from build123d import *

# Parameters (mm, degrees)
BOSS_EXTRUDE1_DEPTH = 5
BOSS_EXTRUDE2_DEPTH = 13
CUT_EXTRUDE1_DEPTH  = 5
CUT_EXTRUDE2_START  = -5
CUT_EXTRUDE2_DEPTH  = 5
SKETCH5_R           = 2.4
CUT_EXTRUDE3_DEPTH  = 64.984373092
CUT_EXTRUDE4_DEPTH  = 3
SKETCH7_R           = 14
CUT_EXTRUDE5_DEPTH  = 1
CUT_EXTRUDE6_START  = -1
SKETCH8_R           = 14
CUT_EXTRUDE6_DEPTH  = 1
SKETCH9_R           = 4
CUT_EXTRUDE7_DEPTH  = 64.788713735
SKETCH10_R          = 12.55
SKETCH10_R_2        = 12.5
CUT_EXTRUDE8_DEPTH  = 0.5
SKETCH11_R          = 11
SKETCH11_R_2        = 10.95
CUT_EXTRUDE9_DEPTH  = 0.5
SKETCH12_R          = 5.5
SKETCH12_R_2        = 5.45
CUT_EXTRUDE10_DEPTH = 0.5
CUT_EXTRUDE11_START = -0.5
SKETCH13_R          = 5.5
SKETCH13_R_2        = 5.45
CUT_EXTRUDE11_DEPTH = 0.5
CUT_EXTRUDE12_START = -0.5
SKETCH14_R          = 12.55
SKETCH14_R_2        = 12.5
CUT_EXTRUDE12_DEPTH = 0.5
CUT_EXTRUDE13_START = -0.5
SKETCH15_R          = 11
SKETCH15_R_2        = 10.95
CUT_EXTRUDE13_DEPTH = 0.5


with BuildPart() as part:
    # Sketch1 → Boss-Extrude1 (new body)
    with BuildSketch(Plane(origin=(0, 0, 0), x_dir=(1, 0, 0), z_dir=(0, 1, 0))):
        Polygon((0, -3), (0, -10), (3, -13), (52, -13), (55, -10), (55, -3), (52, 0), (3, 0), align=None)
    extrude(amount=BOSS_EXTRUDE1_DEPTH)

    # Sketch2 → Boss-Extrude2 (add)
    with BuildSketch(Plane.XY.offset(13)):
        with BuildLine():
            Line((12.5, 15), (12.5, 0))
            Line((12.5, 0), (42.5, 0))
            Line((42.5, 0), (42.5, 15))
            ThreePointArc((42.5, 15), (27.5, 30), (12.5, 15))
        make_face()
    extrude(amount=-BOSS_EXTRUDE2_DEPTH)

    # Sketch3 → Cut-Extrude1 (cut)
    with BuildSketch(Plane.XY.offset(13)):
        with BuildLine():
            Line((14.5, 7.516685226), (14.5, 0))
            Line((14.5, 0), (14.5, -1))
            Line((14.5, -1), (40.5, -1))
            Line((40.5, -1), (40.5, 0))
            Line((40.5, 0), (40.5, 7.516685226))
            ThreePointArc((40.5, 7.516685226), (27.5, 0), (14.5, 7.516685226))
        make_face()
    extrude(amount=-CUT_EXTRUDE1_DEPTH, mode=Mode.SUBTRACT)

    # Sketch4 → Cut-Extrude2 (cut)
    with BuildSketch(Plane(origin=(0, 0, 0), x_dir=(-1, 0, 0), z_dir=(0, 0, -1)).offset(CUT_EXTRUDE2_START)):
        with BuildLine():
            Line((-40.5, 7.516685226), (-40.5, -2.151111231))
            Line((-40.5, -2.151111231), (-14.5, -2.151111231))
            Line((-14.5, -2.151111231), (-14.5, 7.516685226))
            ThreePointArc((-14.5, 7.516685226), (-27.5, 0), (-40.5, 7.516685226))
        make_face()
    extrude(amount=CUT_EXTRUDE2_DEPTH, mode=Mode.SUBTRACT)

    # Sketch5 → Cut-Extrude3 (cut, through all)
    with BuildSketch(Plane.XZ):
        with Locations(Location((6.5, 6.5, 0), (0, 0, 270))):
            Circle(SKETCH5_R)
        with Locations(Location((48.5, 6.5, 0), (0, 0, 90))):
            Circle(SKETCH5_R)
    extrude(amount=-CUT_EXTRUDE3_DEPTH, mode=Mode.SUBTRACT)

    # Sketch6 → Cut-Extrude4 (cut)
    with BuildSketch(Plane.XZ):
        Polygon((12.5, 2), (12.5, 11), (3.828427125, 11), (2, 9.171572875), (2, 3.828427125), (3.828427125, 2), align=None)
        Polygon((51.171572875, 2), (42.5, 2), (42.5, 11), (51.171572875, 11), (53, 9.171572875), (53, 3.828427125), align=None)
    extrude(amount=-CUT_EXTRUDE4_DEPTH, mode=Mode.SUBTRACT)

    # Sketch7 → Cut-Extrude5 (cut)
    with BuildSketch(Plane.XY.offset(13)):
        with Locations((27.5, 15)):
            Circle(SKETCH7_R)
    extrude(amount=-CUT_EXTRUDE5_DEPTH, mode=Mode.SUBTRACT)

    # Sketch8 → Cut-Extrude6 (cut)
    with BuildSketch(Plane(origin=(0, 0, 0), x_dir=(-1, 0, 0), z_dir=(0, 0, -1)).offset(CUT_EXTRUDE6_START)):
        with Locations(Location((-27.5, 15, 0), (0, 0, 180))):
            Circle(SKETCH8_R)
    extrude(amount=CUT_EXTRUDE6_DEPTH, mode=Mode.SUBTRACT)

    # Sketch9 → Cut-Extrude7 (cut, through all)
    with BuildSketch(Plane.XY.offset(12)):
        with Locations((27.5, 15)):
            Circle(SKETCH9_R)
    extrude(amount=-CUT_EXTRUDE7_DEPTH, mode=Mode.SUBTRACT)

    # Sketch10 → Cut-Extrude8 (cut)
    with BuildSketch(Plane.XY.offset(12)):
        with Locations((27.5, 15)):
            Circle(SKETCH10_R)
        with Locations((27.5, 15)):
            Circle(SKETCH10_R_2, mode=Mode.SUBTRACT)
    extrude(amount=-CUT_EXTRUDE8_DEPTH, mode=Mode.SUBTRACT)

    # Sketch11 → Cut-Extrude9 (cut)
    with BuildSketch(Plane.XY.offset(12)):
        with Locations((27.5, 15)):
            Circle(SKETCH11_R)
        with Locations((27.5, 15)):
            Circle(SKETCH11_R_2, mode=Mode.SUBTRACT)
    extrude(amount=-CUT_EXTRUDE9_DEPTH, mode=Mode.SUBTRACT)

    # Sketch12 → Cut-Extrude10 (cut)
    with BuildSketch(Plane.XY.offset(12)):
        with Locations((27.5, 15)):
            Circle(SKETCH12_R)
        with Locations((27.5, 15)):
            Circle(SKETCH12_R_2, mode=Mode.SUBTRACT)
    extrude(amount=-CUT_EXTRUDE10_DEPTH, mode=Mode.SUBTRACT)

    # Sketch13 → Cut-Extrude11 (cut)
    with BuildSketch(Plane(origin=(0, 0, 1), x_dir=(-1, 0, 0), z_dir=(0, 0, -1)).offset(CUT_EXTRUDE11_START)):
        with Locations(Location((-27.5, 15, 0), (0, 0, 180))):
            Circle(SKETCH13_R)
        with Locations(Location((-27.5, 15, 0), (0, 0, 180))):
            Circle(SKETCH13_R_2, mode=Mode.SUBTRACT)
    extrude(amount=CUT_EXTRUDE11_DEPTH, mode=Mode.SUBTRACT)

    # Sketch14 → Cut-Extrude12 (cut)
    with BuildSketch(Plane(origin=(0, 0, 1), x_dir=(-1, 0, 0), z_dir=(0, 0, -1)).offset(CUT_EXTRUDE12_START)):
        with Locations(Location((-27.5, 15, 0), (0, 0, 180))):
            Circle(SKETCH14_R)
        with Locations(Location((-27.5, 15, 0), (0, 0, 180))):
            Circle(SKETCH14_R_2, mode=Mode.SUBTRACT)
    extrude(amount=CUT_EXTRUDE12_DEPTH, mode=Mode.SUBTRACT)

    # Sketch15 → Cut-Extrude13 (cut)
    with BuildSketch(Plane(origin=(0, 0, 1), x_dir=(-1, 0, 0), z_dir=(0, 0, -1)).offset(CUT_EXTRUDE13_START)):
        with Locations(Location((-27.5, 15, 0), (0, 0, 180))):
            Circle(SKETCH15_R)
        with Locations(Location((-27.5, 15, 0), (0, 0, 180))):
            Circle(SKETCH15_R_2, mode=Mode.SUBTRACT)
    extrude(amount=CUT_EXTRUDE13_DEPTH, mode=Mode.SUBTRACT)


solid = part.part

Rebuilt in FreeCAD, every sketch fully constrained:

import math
import FreeCAD as App
import Part
import Sketcher

V = App.Vector

doc = App.newDocument("Part")
params = doc.addObject("Spreadsheet::Sheet", "Params")
for row, (alias, value) in enumerate([
    ("sketch1_width", "49 mm"),
    ("sketch1_height", "7 mm"),
    ("pad1_length", "5 mm"),
    ("sketch2_radius", "15 mm"),
    ("sketch2_height", "15 mm"),
    ("pad2_length", "13 mm"),
    ("sketch3_radius", "15 mm"),
    ("sketch3_width", "26 mm"),
    ("pocket1_length", "5 mm"),
    ("sketch4_radius", "15 mm"),
    ("sketch4_width", "26 mm"),
    ("pocket2_length", "5 mm"),
    ("sketch5_diameter", "4.8 mm"),
    ("sketch6_height", "9 mm"),
    ("pocket4_length", "3 mm"),
    ("sketch7_diameter", "28 mm"),
    ("pocket5_length", "1 mm"),
    ("sketch8_diameter", "28 mm"),
    ("pocket6_length", "1 mm"),
    ("sketch9_diameter", "8 mm"),
    ("sketch10_diameter", "25 mm"),
    ("sketch10_diameter2", "25.1 mm"),
    ("pocket8_length", "0.5 mm"),
    ("sketch11_diameter", "22 mm"),
    ("sketch11_diameter2", "21.9 mm"),
    ("pocket9_length", "0.5 mm"),
    ("sketch12_diameter", "11 mm"),
    ("sketch12_diameter2", "10.9 mm"),
    ("pocket10_length", "0.5 mm"),
    ("sketch13_diameter", "11 mm"),
    ("sketch13_diameter2", "10.9 mm"),
    ("pocket11_length", "0.5 mm"),
    ("sketch14_diameter", "25 mm"),
    ("sketch14_diameter2", "25.1 mm"),
    ("pocket12_length", "0.5 mm"),
    ("sketch15_diameter", "22 mm"),
    ("sketch15_diameter2", "21.9 mm"),
    ("pocket13_length", "0.5 mm"),
], start=1):
    params.set(f"A{row}", alias)
    params.set(f"B{row}", "=" + value)
    params.setAlias(f"B{row}", alias)

body = doc.addObject("PartDesign::Body", "Body")

# Sketch on XZ plane
sketch1 = body.newObject("Sketcher::SketchObject", "Sketch")
sketch1.AttachmentSupport = (doc.getObject("XZ_Plane"), [""])
sketch1.MapMode = "FlatFace"
sketch1.addGeometry([
    Part.LineSegment(V(0, 3, 0), V(0, 10, 0)),  # 0
    Part.LineSegment(V(0, 10, 0), V(3, 13, 0)),  # 1
    Part.LineSegment(V(3, 13, 0), V(52, 13, 0)),  # 2
    Part.LineSegment(V(52, 13, 0), V(55, 10, 0)),  # 3
    Part.LineSegment(V(55, 10, 0), V(55, 3, 0)),  # 4
    Part.LineSegment(V(55, 3, 0), V(52, 0, 0)),  # 5
    Part.LineSegment(V(52, 0, 0), V(3, 0, 0)),  # 6
    Part.LineSegment(V(3, 0, 0), V(0, 3, 0)),  # 7
], False)
sketch1.addConstraint([
    Sketcher.Constraint("Coincident", 0, 2, 1, 1),
    Sketcher.Constraint("Coincident", 1, 2, 2, 1),
    Sketcher.Constraint("Coincident", 2, 2, 3, 1),
    Sketcher.Constraint("Coincident", 3, 2, 4, 1),
    Sketcher.Constraint("Coincident", 4, 2, 5, 1),
    Sketcher.Constraint("Coincident", 5, 2, 6, 1),
    Sketcher.Constraint("Coincident", 6, 2, 7, 1),
    Sketcher.Constraint("Coincident", 7, 2, 0, 1),
    Sketcher.Constraint("Vertical", 0),
    Sketcher.Constraint("Horizontal", 2),
    Sketcher.Constraint("Vertical", 4),
    Sketcher.Constraint("Horizontal", 6),
    Sketcher.Constraint("PointOnObject", 0, 2, -2),
    Sketcher.Constraint("PointOnObject", 5, 2, -1),
    Sketcher.Constraint("Perpendicular", 1, 3),
    Sketcher.Constraint("Perpendicular", 3, 5),
    Sketcher.Constraint("Perpendicular", 5, 7),
    Sketcher.Constraint("Horizontal", 0, 2, 3, 2),
    Sketcher.Constraint("Horizontal", 4, 2, 7, 2),
    Sketcher.Constraint("Vertical", 2, 2, 5, 2),
    Sketcher.Constraint("Vertical", 1, 2, 6, 2),
    Sketcher.Constraint("DistanceX", 2, 1, 2, 2, 49.0),
    Sketcher.Constraint("DistanceY", 0, 1, 0, 2, 7.0),
    Sketcher.Constraint("DistanceY", -1, 1, 0, 2, 10.0),
])
sketch1.setExpression("Constraints[21]", "Params.sketch1_width")
sketch1.setExpression("Constraints[22]", "Params.sketch1_height")
pad1 = body.newObject("PartDesign::Pad", "Pad")
pad1.Profile = sketch1
pad1.setExpression("Length", "Params.pad1_length")
pad1.Reversed = True

# Sketch on XY plane
sketch2 = body.newObject("Sketcher::SketchObject", "Sketch001")
sketch2.AttachmentSupport = (doc.getObject("XY_Plane"), [""])
sketch2.MapMode = "FlatFace"
sketch2.AttachmentOffset = App.Placement(V(0, 0, 13), App.Rotation())
sketch2.addGeometry([
    Part.LineSegment(V(12.5, 15, 0), V(12.5, 0, 0)),
    Part.LineSegment(V(12.5, 0, 0), V(42.5, 0, 0)),
    Part.LineSegment(V(42.5, 0, 0), V(42.5, 15, 0)),
    Part.ArcOfCircle(Part.Circle(V(27.5, 15, 0), V(0, 0, 1), 15), math.radians(0), math.radians(180)),
], False)
sketch2.addConstraint([
    Sketcher.Constraint("Coincident", 0, 2, 1, 1),
    Sketcher.Constraint("Coincident", 1, 2, 2, 1),
    Sketcher.Constraint("Tangent", 2, 2, 3, 1),
    Sketcher.Constraint("Tangent", 3, 2, 0, 1),
    Sketcher.Constraint("Vertical", 0),
    Sketcher.Constraint("Horizontal", 1),
    Sketcher.Constraint("Vertical", 2),
    Sketcher.Constraint("PointOnObject", 0, 2, -1),
    Sketcher.Constraint("Radius", 3, 15.0),
    Sketcher.Constraint("DistanceY", 0, 2, 0, 1, 15.0),
    Sketcher.Constraint("DistanceX", -1, 1, 3, 3, 27.5),
])
sketch2.setExpression("Constraints[8]", "Params.sketch2_radius")
sketch2.setExpression("Constraints[9]", "Params.sketch2_height")
pad2 = body.newObject("PartDesign::Pad", "Pad001")
pad2.Profile = sketch2
pad2.setExpression("Length", "Params.pad2_length")
pad2.Reversed = True

# Sketch on XY plane
sketch3 = body.newObject("Sketcher::SketchObject", "Sketch002")
sketch3.AttachmentSupport = (doc.getObject("XY_Plane"), [""])
sketch3.MapMode = "FlatFace"
sketch3.AttachmentOffset = App.Placement(V(0, 0, 13), App.Rotation())
sketch3.addGeometry([
    Part.LineSegment(V(14.5, 7.516685, 0), V(14.5, -1, 0)),
    Part.LineSegment(V(14.5, -1, 0), V(40.5, -1, 0)),
    Part.LineSegment(V(40.5, -1, 0), V(40.5, 7.516685, 0)),
    Part.ArcOfCircle(Part.Circle(V(27.5, 15, 0), V(0, 0, 1), 15), math.radians(-150.073565), math.radians(-29.926435)),
], False)
sketch3.addConstraint([
    Sketcher.Constraint("Coincident", 0, 2, 1, 1),
    Sketcher.Constraint("Coincident", 1, 2, 2, 1),
    Sketcher.Constraint("Coincident", 2, 2, 3, 2),
    Sketcher.Constraint("Coincident", 3, 1, 0, 1),
    Sketcher.Constraint("Vertical", 0),
    Sketcher.Constraint("Horizontal", 1),
    Sketcher.Constraint("Vertical", 2),
    Sketcher.Constraint("Horizontal", 2, 2, 3, 1),
    Sketcher.Constraint("Radius", 3, 15.0),
    Sketcher.Constraint("DistanceX", 1, 1, 1, 2, 26.0),
    Sketcher.Constraint("DistanceY", -1, 1, 3, 3, 15.0),
    Sketcher.Constraint("DistanceY", 0, 2, -1, 1, 1.0),
    Sketcher.Constraint("DistanceX", -1, 1, 3, 3, 27.5),
])
sketch3.setExpression("Constraints[8]", "Params.sketch3_radius")
sketch3.setExpression("Constraints[9]", "Params.sketch3_width")
pocket1 = body.newObject("PartDesign::Pocket", "Pocket")
pocket1.Profile = sketch3
pocket1.setExpression("Length", "Params.pocket1_length")

# Sketch on XY plane
sketch4 = body.newObject("Sketcher::SketchObject", "Sketch003")
sketch4.AttachmentSupport = (doc.getObject("XY_Plane"), [""])
sketch4.MapMode = "FlatFace"
sketch4.AttachmentOffset = App.Placement(V(0, 0, 5), App.Rotation())
sketch4.addGeometry([
    Part.LineSegment(V(40.5, 7.516685, 0), V(40.5, -2.151111, 0)),
    Part.LineSegment(V(40.5, -2.151111, 0), V(14.5, -2.151111, 0)),
    Part.LineSegment(V(14.5, -2.151111, 0), V(14.5, 7.516685, 0)),
    Part.ArcOfCircle(Part.Circle(V(27.5, 15, 0), V(0, 0, 1), 15), math.radians(-150.073565), math.radians(-29.926435)),
], False)
sketch4.addConstraint([
    Sketcher.Constraint("Coincident", 0, 2, 1, 1),
    Sketcher.Constraint("Coincident", 1, 2, 2, 1),
    Sketcher.Constraint("Coincident", 2, 2, 3, 1),
    Sketcher.Constraint("Coincident", 3, 2, 0, 1),
    Sketcher.Constraint("Vertical", 0),
    Sketcher.Constraint("Horizontal", 1),
    Sketcher.Constraint("Vertical", 2),
    Sketcher.Constraint("Horizontal", 2, 2, 3, 2),
    Sketcher.Constraint("Radius", 3, 15.0),
    Sketcher.Constraint("DistanceX", 1, 2, 1, 1, 26.0),
    Sketcher.Constraint("DistanceY", -1, 1, 3, 3, 15.0),
    Sketcher.Constraint("DistanceX", -1, 1, 3, 3, 27.5),
    Sketcher.Constraint("DistanceY", 0, 2, 0, 1, 9.667796),
])
sketch4.setExpression("Constraints[8]", "Params.sketch4_radius")
sketch4.setExpression("Constraints[9]", "Params.sketch4_width")
pocket2 = body.newObject("PartDesign::Pocket", "Pocket001")
pocket2.Profile = sketch4
pocket2.setExpression("Length", "Params.pocket2_length")

# Sketch on XZ plane
sketch5 = body.newObject("Sketcher::SketchObject", "Sketch004")
sketch5.AttachmentSupport = (doc.getObject("XZ_Plane"), [""])
sketch5.MapMode = "FlatFace"
sketch5.addGeometry([
    Part.Circle(V(6.5, 6.5, 0), V(0, 0, 1), 2.4),
    Part.Circle(V(48.5, 6.5, 0), V(0, 0, 1), 2.4),
], False)
sketch5.addConstraint([
    Sketcher.Constraint("Equal", 0, 1),
    Sketcher.Constraint("Horizontal", 0, 3, 1, 3),
    Sketcher.Constraint("Diameter", 0, 4.8),
    Sketcher.Constraint("DistanceX", 0, 3, 1, 3, 42.0),
    Sketcher.Constraint("DistanceX", -1, 1, 0, 3, 6.5),
    Sketcher.Constraint("DistanceY", -1, 1, 0, 3, 6.5),
])
sketch5.setExpression("Constraints[2]", "Params.sketch5_diameter")
pocket3 = body.newObject("PartDesign::Pocket", "Pocket002")
pocket3.Profile = sketch5
pocket3.Type = "ThroughAll"

# Sketch on XZ plane
sketch6 = body.newObject("Sketcher::SketchObject", "Sketch005")
sketch6.AttachmentSupport = (doc.getObject("XZ_Plane"), [""])
sketch6.MapMode = "FlatFace"
sketch6.addGeometry([
    Part.LineSegment(V(12.5, 2, 0), V(12.5, 11, 0)),  # 0
    Part.LineSegment(V(12.5, 11, 0), V(3.828427, 11, 0)),  # 1
    Part.LineSegment(V(3.828427, 11, 0), V(2, 9.171573, 0)),  # 2
    Part.LineSegment(V(2, 9.171573, 0), V(2, 3.828427, 0)),  # 3
    Part.LineSegment(V(2, 3.828427, 0), V(3.828427, 2, 0)),  # 4
    Part.LineSegment(V(3.828427, 2, 0), V(12.5, 2, 0)),  # 5
    Part.LineSegment(V(42.5, 2, 0), V(51.171573, 2, 0)),  # 6
    Part.LineSegment(V(51.171573, 2, 0), V(53, 3.828427, 0)),  # 7
    Part.LineSegment(V(53, 3.828427, 0), V(53, 9.171573, 0)),  # 8
    Part.LineSegment(V(53, 9.171573, 0), V(51.171573, 11, 0)),  # 9
    Part.LineSegment(V(51.171573, 11, 0), V(42.5, 11, 0)),  # 10
    Part.LineSegment(V(42.5, 11, 0), V(42.5, 2, 0)),  # 11
], False)
sketch6.addConstraint([
    Sketcher.Constraint("Coincident", 0, 2, 1, 1),
    Sketcher.Constraint("Coincident", 1, 2, 2, 1),
    Sketcher.Constraint("Coincident", 2, 2, 3, 1),
    Sketcher.Constraint("Coincident", 3, 2, 4, 1),
    Sketcher.Constraint("Coincident", 4, 2, 5, 1),
    Sketcher.Constraint("Coincident", 5, 2, 0, 1),
    Sketcher.Constraint("Coincident", 6, 2, 7, 1),
    Sketcher.Constraint("Coincident", 7, 2, 8, 1),
    Sketcher.Constraint("Coincident", 8, 2, 9, 1),
    Sketcher.Constraint("Coincident", 9, 2, 10, 1),
    Sketcher.Constraint("Coincident", 10, 2, 11, 1),
    Sketcher.Constraint("Coincident", 11, 2, 6, 1),
    Sketcher.Constraint("Vertical", 0),
    Sketcher.Constraint("Horizontal", 1),
    Sketcher.Constraint("Vertical", 3),
    Sketcher.Constraint("Horizontal", 5),
    Sketcher.Constraint("Horizontal", 6),
    Sketcher.Constraint("Vertical", 8),
    Sketcher.Constraint("Horizontal", 10),
    Sketcher.Constraint("Vertical", 11),
    Sketcher.Constraint("Perpendicular", 2, 4),
    Sketcher.Constraint("Perpendicular", 4, 7),
    Sketcher.Constraint("Perpendicular", 7, 9),
    Sketcher.Constraint("Horizontal", 5, 2, 6, 2),
    Sketcher.Constraint("Horizontal", 3, 2, 7, 2),
    Sketcher.Constraint("Horizontal", 2, 2, 8, 2),
    Sketcher.Constraint("Horizontal", 1, 2, 9, 2),
    Sketcher.Constraint("Vertical", 1, 2, 4, 2),
    Sketcher.Constraint("Vertical", 6, 2, 9, 2),
    Sketcher.Constraint("Equal", 5, 6),
    Sketcher.Constraint("DistanceY", 0, 1, 0, 2, 9.0),
    Sketcher.Constraint("DistanceY", -1, 1, 0, 2, 11.0),
    Sketcher.Constraint("DistanceX", -1, 1, 2, 2, 2.0),
    Sketcher.Constraint("DistanceX", -1, 1, 7, 2, 53.0),
    Sketcher.Constraint("DistanceX", 0, 2, 10, 2, 30.0),
    Sketcher.Constraint("DistanceX", 1, 2, 1, 1, 8.671573),
])
sketch6.setExpression("Constraints[30]", "Params.sketch6_height")
pocket4 = body.newObject("PartDesign::Pocket", "Pocket003")
pocket4.Profile = sketch6
pocket4.setExpression("Length", "Params.pocket4_length")

# Sketch on XY plane
sketch7 = body.newObject("Sketcher::SketchObject", "Sketch006")
sketch7.AttachmentSupport = (doc.getObject("XY_Plane"), [""])
sketch7.MapMode = "FlatFace"
sketch7.AttachmentOffset = App.Placement(V(0, 0, 13), App.Rotation())
sketch7.addGeometry(Part.Circle(V(27.5, 15, 0), V(0, 0, 1), 14), False)
sketch7.addConstraint([
    Sketcher.Constraint("Diameter", 0, 28.0),
    Sketcher.Constraint("DistanceY", -1, 1, 0, 3, 15.0),
    Sketcher.Constraint("DistanceX", -1, 1, 0, 3, 27.5),
])
sketch7.setExpression("Constraints[0]", "Params.sketch7_diameter")
pocket5 = body.newObject("PartDesign::Pocket", "Pocket004")
pocket5.Profile = sketch7
pocket5.setExpression("Length", "Params.pocket5_length")

# Sketch on XY plane
sketch8 = body.newObject("Sketcher::SketchObject", "Sketch007")
sketch8.AttachmentSupport = (doc.getObject("XY_Plane"), [""])
sketch8.MapMode = "FlatFace"
sketch8.AttachmentOffset = App.Placement(V(0, 0, 1), App.Rotation())
sketch8.addGeometry(Part.Circle(V(27.5, 15, 0), V(0, 0, 1), 14), False)
sketch8.addConstraint([
    Sketcher.Constraint("Diameter", 0, 28.0),
    Sketcher.Constraint("DistanceY", -1, 1, 0, 3, 15.0),
    Sketcher.Constraint("DistanceX", -1, 1, 0, 3, 27.5),
])
sketch8.setExpression("Constraints[0]", "Params.sketch8_diameter")
pocket6 = body.newObject("PartDesign::Pocket", "Pocket005")
pocket6.Profile = sketch8
pocket6.setExpression("Length", "Params.pocket6_length")

# Sketch on XY plane
sketch9 = body.newObject("Sketcher::SketchObject", "Sketch008")
sketch9.AttachmentSupport = (doc.getObject("XY_Plane"), [""])
sketch9.MapMode = "FlatFace"
sketch9.AttachmentOffset = App.Placement(V(0, 0, 12), App.Rotation())
sketch9.addGeometry(Part.Circle(V(27.5, 15, 0), V(0, 0, 1), 4), False)
sketch9.addConstraint([
    Sketcher.Constraint("Diameter", 0, 8.0),
    Sketcher.Constraint("DistanceY", -1, 1, 0, 3, 15.0),
    Sketcher.Constraint("DistanceX", -1, 1, 0, 3, 27.5),
])
sketch9.setExpression("Constraints[0]", "Params.sketch9_diameter")
pocket7 = body.newObject("PartDesign::Pocket", "Pocket006")
pocket7.Profile = sketch9
pocket7.Type = "ThroughAll"

# Sketch on XY plane
sketch10 = body.newObject("Sketcher::SketchObject", "Sketch009")
sketch10.AttachmentSupport = (doc.getObject("XY_Plane"), [""])
sketch10.MapMode = "FlatFace"
sketch10.AttachmentOffset = App.Placement(V(0, 0, 12), App.Rotation())
sketch10.addGeometry([
    Part.Circle(V(27.5, 15, 0), V(0, 0, 1), 12.55),
    Part.Circle(V(27.5, 15, 0), V(0, 0, 1), 12.5),
], False)
sketch10.addConstraint([
    Sketcher.Constraint("Coincident", 1, 3, 0, 3),
    Sketcher.Constraint("Diameter", 1, 25.0),
    Sketcher.Constraint("Diameter", 0, 25.1),
    Sketcher.Constraint("DistanceY", -1, 1, 0, 3, 15.0),
    Sketcher.Constraint("DistanceX", -1, 1, 0, 3, 27.5),
])
sketch10.setExpression("Constraints[1]", "Params.sketch10_diameter")
sketch10.setExpression("Constraints[2]", "Params.sketch10_diameter2")
pocket8 = body.newObject("PartDesign::Pocket", "Pocket007")
pocket8.Profile = sketch10
pocket8.setExpression("Length", "Params.pocket8_length")

# Sketch on XY plane
sketch11 = body.newObject("Sketcher::SketchObject", "Sketch010")
sketch11.AttachmentSupport = (doc.getObject("XY_Plane"), [""])
sketch11.MapMode = "FlatFace"
sketch11.AttachmentOffset = App.Placement(V(0, 0, 12), App.Rotation())
sketch11.addGeometry([
    Part.Circle(V(27.5, 15, 0), V(0, 0, 1), 11),
    Part.Circle(V(27.5, 15, 0), V(0, 0, 1), 10.95),
], False)
sketch11.addConstraint([
    Sketcher.Constraint("Coincident", 1, 3, 0, 3),
    Sketcher.Constraint("Diameter", 0, 22.0),
    Sketcher.Constraint("Diameter", 1, 21.9),
    Sketcher.Constraint("DistanceY", -1, 1, 0, 3, 15.0),
    Sketcher.Constraint("DistanceX", -1, 1, 0, 3, 27.5),
])
sketch11.setExpression("Constraints[1]", "Params.sketch11_diameter")
sketch11.setExpression("Constraints[2]", "Params.sketch11_diameter2")
pocket9 = body.newObject("PartDesign::Pocket", "Pocket008")
pocket9.Profile = sketch11
pocket9.setExpression("Length", "Params.pocket9_length")

# Sketch on XY plane
sketch12 = body.newObject("Sketcher::SketchObject", "Sketch011")
sketch12.AttachmentSupport = (doc.getObject("XY_Plane"), [""])
sketch12.MapMode = "FlatFace"
sketch12.AttachmentOffset = App.Placement(V(0, 0, 12), App.Rotation())
sketch12.addGeometry([
    Part.Circle(V(27.5, 15, 0), V(0, 0, 1), 5.5),
    Part.Circle(V(27.5, 15, 0), V(0, 0, 1), 5.45),
], False)
sketch12.addConstraint([
    Sketcher.Constraint("Coincident", 1, 3, 0, 3),
    Sketcher.Constraint("Diameter", 0, 11.0),
    Sketcher.Constraint("Diameter", 1, 10.9),
    Sketcher.Constraint("DistanceY", -1, 1, 0, 3, 15.0),
    Sketcher.Constraint("DistanceX", -1, 1, 0, 3, 27.5),
])
sketch12.setExpression("Constraints[1]", "Params.sketch12_diameter")
sketch12.setExpression("Constraints[2]", "Params.sketch12_diameter2")
pocket10 = body.newObject("PartDesign::Pocket", "Pocket009")
pocket10.Profile = sketch12
pocket10.setExpression("Length", "Params.pocket10_length")

# Sketch on XY plane
sketch13 = body.newObject("Sketcher::SketchObject", "Sketch012")
sketch13.AttachmentSupport = (doc.getObject("XY_Plane"), [""])
sketch13.MapMode = "FlatFace"
sketch13.AttachmentOffset = App.Placement(V(0, 0, 1.5), App.Rotation())
sketch13.addGeometry([
    Part.Circle(V(27.5, 15, 0), V(0, 0, 1), 5.5),
    Part.Circle(V(27.5, 15, 0), V(0, 0, 1), 5.45),
], False)
sketch13.addConstraint([
    Sketcher.Constraint("Coincident", 1, 3, 0, 3),
    Sketcher.Constraint("Diameter", 0, 11.0),
    Sketcher.Constraint("Diameter", 1, 10.9),
    Sketcher.Constraint("DistanceY", -1, 1, 0, 3, 15.0),
    Sketcher.Constraint("DistanceX", -1, 1, 0, 3, 27.5),
])
sketch13.setExpression("Constraints[1]", "Params.sketch13_diameter")
sketch13.setExpression("Constraints[2]", "Params.sketch13_diameter2")
pocket11 = body.newObject("PartDesign::Pocket", "Pocket010")
pocket11.Profile = sketch13
pocket11.setExpression("Length", "Params.pocket11_length")

# Sketch on XY plane
sketch14 = body.newObject("Sketcher::SketchObject", "Sketch013")
sketch14.AttachmentSupport = (doc.getObject("XY_Plane"), [""])
sketch14.MapMode = "FlatFace"
sketch14.AttachmentOffset = App.Placement(V(0, 0, 1.5), App.Rotation())
sketch14.addGeometry([
    Part.Circle(V(27.5, 15, 0), V(0, 0, 1), 12.55),
    Part.Circle(V(27.5, 15, 0), V(0, 0, 1), 12.5),
], False)
sketch14.addConstraint([
    Sketcher.Constraint("Coincident", 1, 3, 0, 3),
    Sketcher.Constraint("Diameter", 1, 25.0),
    Sketcher.Constraint("Diameter", 0, 25.1),
    Sketcher.Constraint("DistanceY", -1, 1, 0, 3, 15.0),
    Sketcher.Constraint("DistanceX", -1, 1, 0, 3, 27.5),
])
sketch14.setExpression("Constraints[1]", "Params.sketch14_diameter")
sketch14.setExpression("Constraints[2]", "Params.sketch14_diameter2")
pocket12 = body.newObject("PartDesign::Pocket", "Pocket011")
pocket12.Profile = sketch14
pocket12.setExpression("Length", "Params.pocket12_length")

# Sketch on XY plane
sketch15 = body.newObject("Sketcher::SketchObject", "Sketch014")
sketch15.AttachmentSupport = (doc.getObject("XY_Plane"), [""])
sketch15.MapMode = "FlatFace"
sketch15.AttachmentOffset = App.Placement(V(0, 0, 1.5), App.Rotation())
sketch15.addGeometry([
    Part.Circle(V(27.5, 15, 0), V(0, 0, 1), 11),
    Part.Circle(V(27.5, 15, 0), V(0, 0, 1), 10.95),
], False)
sketch15.addConstraint([
    Sketcher.Constraint("Coincident", 1, 3, 0, 3),
    Sketcher.Constraint("Diameter", 0, 22.0),
    Sketcher.Constraint("Diameter", 1, 21.9),
    Sketcher.Constraint("DistanceY", -1, 1, 0, 3, 15.0),
    Sketcher.Constraint("DistanceX", -1, 1, 0, 3, 27.5),
])
sketch15.setExpression("Constraints[1]", "Params.sketch15_diameter")
sketch15.setExpression("Constraints[2]", "Params.sketch15_diameter2")
pocket13 = body.newObject("PartDesign::Pocket", "Pocket012")
pocket13.Profile = sketch15
pocket13.setExpression("Length", "Params.pocket13_length")

doc.recompute()
